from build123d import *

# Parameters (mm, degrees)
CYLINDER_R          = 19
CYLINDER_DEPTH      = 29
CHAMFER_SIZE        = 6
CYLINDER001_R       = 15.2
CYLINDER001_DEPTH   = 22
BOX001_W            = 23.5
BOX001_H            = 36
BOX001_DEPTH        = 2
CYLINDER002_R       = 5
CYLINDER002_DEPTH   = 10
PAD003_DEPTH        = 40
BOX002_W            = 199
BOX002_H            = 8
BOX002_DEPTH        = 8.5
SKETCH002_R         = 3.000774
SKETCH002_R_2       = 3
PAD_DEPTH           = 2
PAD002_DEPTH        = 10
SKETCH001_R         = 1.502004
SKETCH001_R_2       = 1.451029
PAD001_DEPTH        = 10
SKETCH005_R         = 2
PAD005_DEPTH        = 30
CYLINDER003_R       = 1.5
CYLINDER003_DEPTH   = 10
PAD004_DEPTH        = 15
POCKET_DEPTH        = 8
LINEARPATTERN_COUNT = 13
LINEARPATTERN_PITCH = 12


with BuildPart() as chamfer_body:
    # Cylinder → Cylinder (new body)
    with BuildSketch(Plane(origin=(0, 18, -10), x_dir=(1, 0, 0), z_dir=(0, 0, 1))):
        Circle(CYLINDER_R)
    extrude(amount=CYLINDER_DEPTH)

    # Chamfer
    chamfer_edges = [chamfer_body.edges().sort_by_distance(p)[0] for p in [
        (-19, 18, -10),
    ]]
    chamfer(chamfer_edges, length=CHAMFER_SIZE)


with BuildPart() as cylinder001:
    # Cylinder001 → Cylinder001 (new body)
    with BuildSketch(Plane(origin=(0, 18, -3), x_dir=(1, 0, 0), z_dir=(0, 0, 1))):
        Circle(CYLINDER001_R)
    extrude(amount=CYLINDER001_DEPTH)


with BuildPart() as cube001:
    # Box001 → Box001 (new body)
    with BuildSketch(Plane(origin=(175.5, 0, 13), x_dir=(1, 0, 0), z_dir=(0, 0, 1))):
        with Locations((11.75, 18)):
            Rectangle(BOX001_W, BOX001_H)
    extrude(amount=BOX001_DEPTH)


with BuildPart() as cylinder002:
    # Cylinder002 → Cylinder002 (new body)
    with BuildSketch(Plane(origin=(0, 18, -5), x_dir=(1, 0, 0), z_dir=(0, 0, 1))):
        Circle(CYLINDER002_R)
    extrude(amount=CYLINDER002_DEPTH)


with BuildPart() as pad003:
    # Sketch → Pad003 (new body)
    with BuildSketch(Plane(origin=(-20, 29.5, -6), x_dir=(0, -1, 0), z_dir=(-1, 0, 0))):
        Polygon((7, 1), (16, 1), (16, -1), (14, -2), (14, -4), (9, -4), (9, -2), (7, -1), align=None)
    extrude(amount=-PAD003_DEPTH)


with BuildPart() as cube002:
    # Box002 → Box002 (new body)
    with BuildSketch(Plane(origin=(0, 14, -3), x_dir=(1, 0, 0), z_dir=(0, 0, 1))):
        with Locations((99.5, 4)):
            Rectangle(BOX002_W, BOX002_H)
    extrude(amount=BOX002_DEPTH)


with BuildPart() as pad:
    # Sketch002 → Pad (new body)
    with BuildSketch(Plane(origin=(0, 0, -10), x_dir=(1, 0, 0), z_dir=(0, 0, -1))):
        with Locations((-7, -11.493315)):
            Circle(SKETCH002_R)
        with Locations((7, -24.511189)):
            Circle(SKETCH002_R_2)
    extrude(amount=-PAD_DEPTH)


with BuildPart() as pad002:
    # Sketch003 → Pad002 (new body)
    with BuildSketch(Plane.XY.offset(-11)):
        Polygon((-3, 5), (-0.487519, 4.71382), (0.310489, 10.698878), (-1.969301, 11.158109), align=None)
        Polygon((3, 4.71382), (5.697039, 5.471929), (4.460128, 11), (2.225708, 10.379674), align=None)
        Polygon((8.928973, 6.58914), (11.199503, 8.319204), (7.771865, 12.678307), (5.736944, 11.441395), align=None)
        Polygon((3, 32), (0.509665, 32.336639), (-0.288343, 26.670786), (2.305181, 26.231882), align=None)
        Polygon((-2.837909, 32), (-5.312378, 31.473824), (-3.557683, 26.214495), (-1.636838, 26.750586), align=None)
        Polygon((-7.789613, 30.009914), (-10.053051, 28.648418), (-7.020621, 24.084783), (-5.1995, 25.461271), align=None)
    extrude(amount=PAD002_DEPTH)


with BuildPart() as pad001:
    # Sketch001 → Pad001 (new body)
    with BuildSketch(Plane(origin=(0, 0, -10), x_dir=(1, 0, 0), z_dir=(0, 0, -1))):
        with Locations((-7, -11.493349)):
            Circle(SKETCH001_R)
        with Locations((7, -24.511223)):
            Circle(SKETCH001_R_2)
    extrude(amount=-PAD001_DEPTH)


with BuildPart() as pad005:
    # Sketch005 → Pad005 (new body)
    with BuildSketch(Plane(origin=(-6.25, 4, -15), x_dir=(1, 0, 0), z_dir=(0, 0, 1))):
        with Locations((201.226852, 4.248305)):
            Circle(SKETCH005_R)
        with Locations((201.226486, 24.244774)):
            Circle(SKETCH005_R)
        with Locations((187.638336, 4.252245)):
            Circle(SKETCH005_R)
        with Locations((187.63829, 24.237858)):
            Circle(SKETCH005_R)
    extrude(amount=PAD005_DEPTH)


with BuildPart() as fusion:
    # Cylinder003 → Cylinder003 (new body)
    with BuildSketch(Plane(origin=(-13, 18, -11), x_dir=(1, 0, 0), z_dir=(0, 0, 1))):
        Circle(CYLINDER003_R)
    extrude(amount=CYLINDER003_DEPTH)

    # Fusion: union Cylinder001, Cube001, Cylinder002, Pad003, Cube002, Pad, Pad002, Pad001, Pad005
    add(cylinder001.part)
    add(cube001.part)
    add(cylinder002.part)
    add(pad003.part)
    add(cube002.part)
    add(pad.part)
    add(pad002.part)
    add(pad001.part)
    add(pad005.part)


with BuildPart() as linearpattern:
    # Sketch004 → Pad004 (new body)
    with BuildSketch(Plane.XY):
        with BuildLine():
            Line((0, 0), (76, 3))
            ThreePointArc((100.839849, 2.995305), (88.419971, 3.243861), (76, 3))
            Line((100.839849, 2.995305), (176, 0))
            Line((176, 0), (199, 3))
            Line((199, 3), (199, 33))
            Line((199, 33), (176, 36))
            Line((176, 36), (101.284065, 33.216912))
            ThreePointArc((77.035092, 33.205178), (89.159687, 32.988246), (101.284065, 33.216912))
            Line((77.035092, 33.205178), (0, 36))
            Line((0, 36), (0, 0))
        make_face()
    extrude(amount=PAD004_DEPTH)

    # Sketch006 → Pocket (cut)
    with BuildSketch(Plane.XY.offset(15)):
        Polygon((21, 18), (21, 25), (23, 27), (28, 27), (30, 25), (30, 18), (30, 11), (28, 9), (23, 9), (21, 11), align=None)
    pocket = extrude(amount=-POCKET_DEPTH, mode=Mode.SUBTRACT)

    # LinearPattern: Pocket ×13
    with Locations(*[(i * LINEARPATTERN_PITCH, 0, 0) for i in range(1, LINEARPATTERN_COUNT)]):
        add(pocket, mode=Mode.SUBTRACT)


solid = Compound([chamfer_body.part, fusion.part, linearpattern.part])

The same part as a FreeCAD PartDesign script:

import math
import FreeCAD as App
import Part
import Sketcher

V = App.Vector
Q = App.Units.Quantity


def edges_at(feature, points):
    """Names of the edges that pass closest to the given points."""
    edges = feature.Shape.Edges
    near = lambda p: min(range(len(edges)), key=lambda i: edges[i].distToShape(Part.Vertex(*p))[0])
    return sorted({f"Edge{near(p) + 1}" for p in points})


def add_polygon(sketch, points):
    """Adds a closed chain of lines whose ends are joined by coincident constraints."""
    first, n = sketch.GeometryCount, len(points)
    for a, b in zip(points, points[1:] + points[:1]):
        sketch.addGeometry(Part.LineSegment(App.Vector(*a, 0), App.Vector(*b, 0)), False)
    for i in range(n):
        sketch.addConstraint(Sketcher.Constraint("Coincident", first + i, 2, first + (i + 1) % n, 1))

doc = App.newDocument("Part")
body = doc.addObject("PartDesign::Body", "Body")

# Sketch on XY plane
sketch1 = body.newObject("Sketcher::SketchObject", "Sketch")
sketch1.AttachmentSupport = (doc.getObject("XY_Plane"), [""])
sketch1.MapMode = "FlatFace"
sketch1.AttachmentOffset = App.Placement(V(0, 0, -10), App.Rotation())
sketch1.addGeometry(Part.Circle(V(0, 18, 0), V(0, 0, 1), 19), False)
sketch1.addConstraint([
    Sketcher.Constraint("PointOnObject", 0, 3, -2),
    Sketcher.Constraint("Diameter", 0, Q("38 mm")),
    Sketcher.Constraint("DistanceY", -1, 1, 0, 3, Q("18 mm")),
])
pad1 = body.newObject("PartDesign::Pad", "Pad")
pad1.Profile = sketch1
pad1.Length = 29
doc.recompute()

chamfer = body.newObject("PartDesign::Chamfer", "Chamfer")
chamfer.Base = (pad1, edges_at(pad1, [(-19, 18, -10)]))
chamfer.Size = 6
body2 = doc.addObject("PartDesign::Body", "Body001")

# Sketch on XY plane
sketch2 = body2.newObject("Sketcher::SketchObject", "Sketch001")
sketch2.AttachmentSupport = (doc.getObject("XY_Plane001"), [""])
sketch2.MapMode = "FlatFace"
sketch2.AttachmentOffset = App.Placement(V(0, 0, -3), App.Rotation())
sketch2.addGeometry(Part.Circle(V(0, 18, 0), V(0, 0, 1), 15), False)
sketch2.addConstraint([
    Sketcher.Constraint("PointOnObject", 0, 3, -2),
    Sketcher.Constraint("Diameter", 0, Q("30.4 mm")),
    Sketcher.Constraint("DistanceY", -1, 1, 0, 3, Q("18 mm")),
])
pad2 = body2.newObject("PartDesign::Pad", "Pad001")
pad2.Profile = sketch2
pad2.Length = 22
body3 = doc.addObject("PartDesign::Body", "Body002")

# Sketch on XY plane
sketch3 = body3.newObject("Sketcher::SketchObject", "Sketch002")
sketch3.AttachmentSupport = (doc.getObject("XY_Plane002"), [""])
sketch3.MapMode = "FlatFace"
sketch3.AttachmentOffset = App.Placement(V(0, 0, 13), App.Rotation())
add_polygon(sketch3, [(176, 36), (176, 0), (199, 0), (199, 36)])  # lines 0-3
sketch3.addConstraint([
    Sketcher.Constraint("Vertical", 0),
    Sketcher.Constraint("Horizontal", 1),
    Sketcher.Constraint("Vertical", 2),
    Sketcher.Constraint("Horizontal", 3),
    Sketcher.Constraint("PointOnObject", 0, 2, -1),
    Sketcher.Constraint("DistanceY", 0, 2, 0, 1, Q("36 mm")),
    Sketcher.Constraint("DistanceX", 1, 1, 1, 2, Q("23.5 mm")),
    Sketcher.Constraint("DistanceX", -1, 1, 1, 2, Q("199 mm")),
])
pad3 = body3.newObject("PartDesign::Pad", "Pad002")
pad3.Profile = sketch3
pad3.Length = 2
body4 = doc.addObject("PartDesign::Body", "Body003")

# Sketch on XY plane
sketch4 = body4.newObject("Sketcher::SketchObject", "Sketch003")
sketch4.AttachmentSupport = (doc.getObject("XY_Plane003"), [""])
sketch4.MapMode = "FlatFace"
sketch4.AttachmentOffset = App.Placement(V(0, 0, -5), App.Rotation())
sketch4.addGeometry(Part.Circle(V(0, 18, 0), V(0, 0, 1), 5), False)
sketch4.addConstraint([
    Sketcher.Constraint("PointOnObject", 0, 3, -2),
    Sketcher.Constraint("Diameter", 0, Q("10 mm")),
    Sketcher.Constraint("DistanceY", -1, 1, 0, 3, Q("18 mm")),
])
pad4 = body4.newObject("PartDesign::Pad", "Pad003")
pad4.Profile = sketch4
pad4.Length = 10
body5 = doc.addObject("PartDesign::Body", "Body004")

# Sketch on YZ plane
sketch5 = body5.newObject("Sketcher::SketchObject", "Sketch004")
sketch5.AttachmentSupport = (doc.getObject("YZ_Plane004"), [""])
sketch5.MapMode = "FlatFace"
sketch5.AttachmentOffset = App.Placement(V(0, 0, -20), App.Rotation())
add_polygon(sketch5, [(13.5, -5), (22.5, -5), (22.5, -7), (20.5, -8), (20.5, -10), (15.5, -10), (15.5, -8), (13.5, -7)])  # lines 0-7
sketch5.addConstraint([
    Sketcher.Constraint("Horizontal", 0),
    Sketcher.Constraint("Vertical", 1),
    Sketcher.Constraint("Vertical", 3),
    Sketcher.Constraint("Horizontal", 4),
    Sketcher.Constraint("Vertical", 5),
    Sketcher.Constraint("Vertical", 7),
    Sketcher.Constraint("Horizontal", 2, 2, 5, 2),
    Sketcher.Constraint("Horizontal", 1, 2, 6, 2),
    Sketcher.Constraint("Equal", 1, 3),
    Sketcher.Constraint("Equal", 2, 6),
    Sketcher.Constraint("DistanceX", 0, 1, 0, 2, Q("9 mm")),
    Sketcher.Constraint("DistanceX", 4, 2, 4, 1, Q("5 mm")),
    Sketcher.Constraint("DistanceY", 1, 2, 1, 1, Q("2 mm")),
    Sketcher.Constraint("DistanceY", 0, 2, -1, 1, Q("5 mm")),
    Sketcher.Constraint("DistanceY", 2, 2, -1, 1, Q("8 mm")),
    Sketcher.Constraint("DistanceX", -1, 1, 0, 2, Q("22.5 mm")),
])
pad5 = body5.newObject("PartDesign::Pad", "Pad004")
pad5.Profile = sketch5
pad5.Length = 40
body6 = doc.addObject("PartDesign::Body", "Body005")

# Sketch on XY plane
sketch6 = body6.newObject("Sketcher::SketchObject", "Sketch005")
sketch6.AttachmentSupport = (doc.getObject("XY_Plane005"), [""])
sketch6.MapMode = "FlatFace"
sketch6.AttachmentOffset = App.Placement(V(0, 0, -3), App.Rotation())
add_polygon(sketch6, [(0, 22), (0, 14), (199, 14), (199, 22)])  # lines 0-3
sketch6.addConstraint([
    Sketcher.Constraint("Vertical", 0),
    Sketcher.Constraint("Horizontal", 1),
    Sketcher.Constraint("Vertical", 2),
    Sketcher.Constraint("Horizontal", 3),
    Sketcher.Constraint("PointOnObject", 0, 2, -2),
    Sketcher.Constraint("DistanceX", 1, 1, 1, 2, Q("199 mm")),
    Sketcher.Constraint("DistanceY", 0, 2, 0, 1, Q("8 mm")),
    Sketcher.Constraint("DistanceY", -1, 1, 0, 2, Q("14 mm")),
])
pad6 = body6.newObject("PartDesign::Pad", "Pad005")
pad6.Profile = sketch6
pad6.Length = 8.5
body7 = doc.addObject("PartDesign::Body", "Body006")
body7.AllowCompound = True

# Sketch on XY plane
sketch7 = body7.newObject("Sketcher::SketchObject", "Sketch006")
sketch7.AttachmentSupport = (doc.getObject("XY_Plane006"), [""])
sketch7.MapMode = "FlatFace"
sketch7.AttachmentOffset = App.Placement(V(0, 0, -10), App.Rotation())
sketch7.addGeometry([
    Part.Circle(V(-7, 11.5, 0), V(0, 0, 1), 3),
    Part.Circle(V(7, 24.5, 0), V(0, 0, 1), 3),
], False)
sketch7.addConstraint([
    Sketcher.Constraint("Diameter", 1, Q("6 mm")),
    Sketcher.Constraint("DistanceX", 0, 3, -1, 1, Q("7 mm")),
    Sketcher.Constraint("DistanceX", -1, 1, 1, 3, Q("7 mm")),
    Sketcher.Constraint("Diameter", 0, Q("6.001548 mm")),
    Sketcher.Constraint("DistanceY", -1, 1, 1, 3, Q("24.511189 mm")),
    Sketcher.Constraint("DistanceY", -1, 1, 0, 3, Q("11.493315 mm")),
])
pad7 = body7.newObject("PartDesign::Pad", "Pad006")
pad7.Profile = sketch7
pad7.Length = 2
body8 = doc.addObject("PartDesign::Body", "Body007")
body8.AllowCompound = True

# Sketch on XY plane
sketch8 = body8.newObject("Sketcher::SketchObject", "Sketch007")
sketch8.AttachmentSupport = (doc.getObject("XY_Plane007"), [""])
sketch8.MapMode = "FlatFace"
sketch8.AttachmentOffset = App.Placement(V(0, 0, -11), App.Rotation())
add_polygon(sketch8, [(-3, 5), (-0.5, 4.7), (0.3, 10.7), (-2, 11.2)])  # lines 0-3
add_polygon(sketch8, [(3, 4.7), (5.7, 5.5), (4.5, 11), (2.2, 10.4)])  # lines 4-7
add_polygon(sketch8, [(8.9, 6.6), (11.2, 8.3), (7.8, 12.7), (5.7, 11.4)])  # lines 8-11
add_polygon(sketch8, [(3, 32), (0.5, 32.3), (-0.3, 26.7), (2.3, 26.2)])  # lines 12-15
add_polygon(sketch8, [(-2.8, 32), (-5.3, 31.5), (-3.6, 26.2), (-1.6, 26.8)])  # lines 16-19
add_polygon(sketch8, [(-7.8, 30), (-10.1, 28.6), (-7, 24.1), (-5.2, 25.5)])  # lines 20-23
sketch8.addConstraint([
    Sketcher.Constraint("Horizontal", 0, 2, 7, 2),
    Sketcher.Constraint("Horizontal", 15, 2, 19, 2),
    Sketcher.Constraint("Vertical", 7, 2, 15, 2),
    Sketcher.Constraint("DistanceX", 3, 2, -1, 1, Q("3 mm")),
    Sketcher.Constraint("DistanceY", -1, 1, 3, 2, Q("5 mm")),
    Sketcher.Constraint("DistanceY", -1, 1, 5, 2, Q("11 mm")),
    Sketcher.Constraint("DistanceX", -1, 1, 7, 2, Q("3 mm")),
    Sketcher.Constraint("DistanceY", -1, 1, 15, 2, Q("32 mm")),
    Sketcher.Constraint("Distance", 14, Q("2.6304 mm")),
    Sketcher.Constraint("DistanceX", 2, 2, -1, 1, Q("1.969301 mm")),
    Sketcher.Constraint("DistanceX", 22, 2, -1, 1, Q("5.1995 mm")),
    Sketcher.Constraint("DistanceX", 12, 2, 9, 2, Q("7.2622 mm")),
    Sketcher.Constraint("DistanceY", 13, 2, 18, 2, Q("0.0798 mm")),
    Sketcher.Constraint("Distance", 3, Q("6.243769 mm")),
    Sketcher.Constraint("Distance", 4, Q("2.801562 mm")),
    Sketcher.Constraint("Distance", 5, Q("5.664761 mm")),
    Sketcher.Constraint("Distance", 6, Q("2.31893 mm")),
    Sketcher.Constraint("Distance", 9, Q("5.545312 mm")),
    Sketcher.Constraint("Distance", 11, Q("5.808049 mm")),
    Sketcher.Constraint("Distance", 17, Q("5.544321 mm")),
    Sketcher.Constraint("Distance", 18, Q("1.994252 mm")),
    Sketcher.Constraint("Distance", 21, Q("5.47927 mm")),
    Sketcher.Constraint("Distance", 23, Q("5.23439 mm")),
    Sketcher.Constraint("DistanceX", 0, 2, -1, 1, Q("0.487519 mm")),
    Sketcher.Constraint("DistanceY", -1, 1, 0, 2, Q("4.71382 mm")),
    Sketcher.Constraint("DistanceX", -1, 1, 1, 2, Q("0.310489 mm")),
    Sketcher.Constraint("DistanceX", -1, 1, 4, 2, Q("5.697039 mm")),
    Sketcher.Constraint("DistanceX", -1, 1, 6, 2, Q("2.225708 mm")),
    Sketcher.Constraint("DistanceY", -1, 1, 11, 2, Q("6.58914 mm")),
    Sketcher.Constraint("DistanceY", -1, 1, 12, 2, Q("32.336639 mm")),
    Sketcher.Constraint("DistanceX", -1, 1, 14, 2, Q("2.305181 mm")),
    Sketcher.Constraint("DistanceY", -1, 1, 14, 2, Q("26.231882 mm")),
    Sketcher.Constraint("DistanceX", 19, 2, -1, 1, Q("2.837909 mm")),
    Sketcher.Constraint("DistanceX", 20, 2, -1, 1, Q("10.053051 mm")),
    Sketcher.Constraint("DistanceX", 21, 2, -1, 1, Q("7.020621 mm")),
    Sketcher.Constraint("DistanceY", -1, 1, 22, 2, Q("25.461271 mm")),
    Sketcher.Constraint("DistanceY", 0, 2, 1, 2, Q("5.985058 mm")),
    Sketcher.Constraint("DistanceY", 8, 2, 6, 2, Q("2.06047 mm")),
    Sketcher.Constraint("DistanceX", 9, 2, 8, 2, Q("3.427638 mm")),
    Sketcher.Constraint("DistanceX", 10, 2, 9, 2, Q("2.034921 mm")),
    Sketcher.Constraint("DistanceY", 6, 2, 10, 2, Q("1.061721 mm")),
    Sketcher.Constraint("DistanceX", 13, 2, 12, 2, Q("0.798008 mm")),
    Sketcher.Constraint("DistanceY", 9, 2, 13, 2, Q("13.992479 mm")),
    Sketcher.Constraint("DistanceY", 13, 2, 16, 2, Q("4.803038 mm")),
    Sketcher.Constraint("DistanceX", 16, 2, 14, 2, Q("7.617559 mm")),
    Sketcher.Constraint("DistanceX", 17, 2, 13, 2, Q("3.26934 mm")),
    Sketcher.Constraint("DistanceY", 13, 2, 20, 2, Q("1.977632 mm")),
    Sketcher.Constraint("DistanceY", 23, 2, 16, 2, Q("1.46391 mm")),
])
pad8 = body8.newObject("PartDesign::Pad", "Pad007")
pad8.Profile = sketch8
pad8.Length = 10
body9 = doc.addObject("PartDesign::Body", "Body008")
body9.AllowCompound = True

# Sketch on XY plane
sketch9 = body9.newObject("Sketcher::SketchObject", "Sketch008")
sketch9.AttachmentSupport = (doc.getObject("XY_Plane008"), [""])
sketch9.MapMode = "FlatFace"
sketch9.AttachmentOffset = App.Placement(V(0, 0, -10), App.Rotation())
sketch9.addGeometry([
    Part.Circle(V(-7, 11.5, 0), V(0, 0, 1), 1.5),
    Part.Circle(V(7, 24.5, 0), V(0, 0, 1), 1.5),
], False)
sketch9.addConstraint([
    Sketcher.Constraint("DistanceX", 0, 3, -1, 1, Q("7 mm")),
    Sketcher.Constraint("DistanceX", -1, 1, 1, 3, Q("7 mm")),
    Sketcher.Constraint("Diameter", 0, Q("3.004008 mm")),
    Sketcher.Constraint("Diameter", 1, Q("2.902058 mm")),
    Sketcher.Constraint("DistanceY", -1, 1, 0, 3, Q("11.493349 mm")),
    Sketcher.Constraint("DistanceY", -1, 1, 1, 3, Q("24.511223 mm")),
])
pad9 = body9.newObject("PartDesign::Pad", "Pad008")
pad9.Profile = sketch9
pad9.Length = 10
body10 = doc.addObject("PartDesign::Body", "Body009")
body10.AllowCompound = True

# Sketch on XY plane
sketch10 = body10.newObject("Sketcher::SketchObject", "Sketch009")
sketch10.AttachmentSupport = (doc.getObject("XY_Plane009"), [""])
sketch10.MapMode = "FlatFace"
sketch10.AttachmentOffset = App.Placement(V(0, 0, -15), App.Rotation())
sketch10.addGeometry([
    Part.Circle(V(195, 8.2, 0), V(0, 0, 1), 2),
    Part.Circle(V(195, 28.2, 0), V(0, 0, 1), 2),
    Part.Circle(V(181.4, 8.3, 0), V(0, 0, 1), 2),
    Part.Circle(V(181.4, 28.2, 0), V(0, 0, 1), 2),
], False)
sketch10.addConstraint([
    Sketcher.Constraint("Equal", 0, 1),
    Sketcher.Constraint("Equal", 1, 2),
    Sketcher.Constraint("Equal", 2, 3),
    Sketcher.Constraint("Diameter", 0, Q("4 mm")),
    Sketcher.Constraint("DistanceX", -1, 1, 0, 3, Q("194.976852 mm")),
    Sketcher.Constraint("DistanceX", -1, 1, 3, 3, Q("181.38829 mm")),
    Sketcher.Constraint("DistanceY", 0, 3, 1, 3, Q("19.996469 mm")),
    Sketcher.Constraint("DistanceY", 0, 3, 2, 3, Q("0.00394 mm")),
    Sketcher.Constraint("DistanceX", 2, 3, 1, 3, Q("13.58815 mm")),
    Sketcher.Constraint("DistanceY", -1, 1, 0, 3, Q("8.248305 mm")),
    Sketcher.Constraint("DistanceX", -1, 1, 1, 3, Q("194.976486 mm")),
    Sketcher.Constraint("DistanceY", -1, 1, 3, 3, Q("28.237858 mm")),
])
pad10 = body10.newObject("PartDesign::Pad", "Pad009")
pad10.Profile = sketch10
pad10.Length = 30
body11 = doc.addObject("PartDesign::Body", "Body010")
body11.AllowCompound = True

# Sketch on XY plane
sketch11 = body11.newObject("Sketcher::SketchObject", "Sketch010")
sketch11.AttachmentSupport = (doc.getObject("XY_Plane010"), [""])
sketch11.MapMode = "FlatFace"
sketch11.AttachmentOffset = App.Placement(V(0, 0, -11), App.Rotation())
sketch11.addGeometry(Part.Circle(V(-13, 18, 0), V(0, 0, 1), 1.5), False)
sketch11.addConstraint([
    Sketcher.Constraint("Diameter", 0, Q("3 mm")),
    Sketcher.Constraint("DistanceX", 0, 3, -1, 1, Q("13 mm")),
    Sketcher.Constraint("DistanceY", -1, 1, 0, 3, Q("18 mm")),
])
pad11 = body11.newObject("PartDesign::Pad", "Pad010")
pad11.Profile = sketch11
pad11.Length = 10
doc.recompute()

boolean = body11.newObject("PartDesign::Boolean", "Boolean")
boolean.Type = "Fuse"
boolean.addObjects([body2])
doc.recompute()

boolean2 = body11.newObject("PartDesign::Boolean", "Boolean001")
boolean2.Type = "Fuse"
boolean2.addObjects([body3])
doc.recompute()

boolean3 = body11.newObject("PartDesign::Boolean", "Boolean002")
boolean3.Type = "Fuse"
boolean3.addObjects([body4])
doc.recompute()

boolean4 = body11.newObject("PartDesign::Boolean", "Boolean003")
boolean4.Type = "Fuse"
boolean4.addObjects([body5])
doc.recompute()

boolean5 = body11.newObject("PartDesign::Boolean", "Boolean004")
boolean5.Type = "Fuse"
boolean5.addObjects([body6])
doc.recompute()

boolean6 = body11.newObject("PartDesign::Boolean", "Boolean005")
boolean6.Type = "Fuse"
boolean6.addObjects([body7])
doc.recompute()

boolean7 = body11.newObject("PartDesign::Boolean", "Boolean006")
boolean7.Type = "Fuse"
boolean7.addObjects([body8])
doc.recompute()

boolean8 = body11.newObject("PartDesign::Boolean", "Boolean007")
boolean8.Type = "Fuse"
boolean8.addObjects([body9])
doc.recompute()

boolean9 = body11.newObject("PartDesign::Boolean", "Boolean008")
boolean9.Type = "Fuse"
boolean9.addObjects([body10])
body12 = doc.addObject("PartDesign::Body", "Body011")

# Sketch on XY plane
sketch12 = body12.newObject("Sketcher::SketchObject", "Sketch011")
sketch12.AttachmentSupport = (doc.getObject("XY_Plane011"), [""])
sketch12.MapMode = "FlatFace"
sketch12.addGeometry([
    Part.LineSegment(V(0, 0, 0), V(76, 3, 0)),  # 0
    Part.ArcOfCircle(Part.Circle(V(88.360738, -310.139193, 0), V(0, 0, 1), 313.383059), math.radians(87.717843), math.radians(92.260498)),  # 1
    Part.LineSegment(V(100.839849, 2.995305, 0), V(176, 0, 0)),  # 2
    Part.LineSegment(V(176, 0, 0), V(199, 3, 0)),  # 3
    Part.LineSegment(V(199, 3, 0), V(199, 33, 0)),  # 4
    Part.LineSegment(V(199, 33, 0), V(176, 36, 0)),  # 5
    Part.LineSegment(V(176, 36, 0), V(101.284065, 33.216912, 0)),  # 6
    Part.ArcOfCircle(Part.Circle(V(88.999994, 363.000526, 0), V(0, 0, 1), 330.012319), math.radians(-92.077767), math.radians(-87.866783)),  # 7
    Part.LineSegment(V(77.035092, 33.205178, 0), V(0, 36, 0)),  # 8
    Part.LineSegment(V(0, 36, 0), V(0, 0, 0)),  # 9
], False)
sketch12.addConstraint([
    Sketcher.Constraint("Coincident", 0, 2, 1, 2),
    Sketcher.Constraint("Coincident", 1, 1, 2, 1),
    Sketcher.Constraint("Coincident", 2, 2, 3, 1),
    Sketcher.Constraint("Coincident", 3, 2, 4, 1),
    Sketcher.Constraint("Coincident", 4, 2, 5, 1),
    Sketcher.Constraint("Coincident", 5, 2, 6, 1),
    Sketcher.Constraint("Coincident", 6, 2, 7, 2),
    Sketcher.Constraint("Coincident", 7, 1, 8, 1),
    Sketcher.Constraint("Coincident", 8, 2, 9, 1),
    Sketcher.Constraint("Coincident", 9, 2, 0, 1),
    Sketcher.Constraint("Vertical", 4),
    Sketcher.Constraint("Vertical", 9),
    Sketcher.Constraint("Coincident", 9, 2, -1, 1),
    Sketcher.Constraint("PointOnObject", 2, 2, -1),
    Sketcher.Constraint("DistanceY", 4, 1, 4, 2, Q("30 mm")),
    Sketcher.Constraint("DistanceY", 9, 2, 9, 1, Q("36 mm")),
    Sketcher.Constraint("DistanceX", -1, 1, 0, 2, Q("76 mm")),
    Sketcher.Constraint("DistanceY", -1, 1, 0, 2, Q("3 mm")),
    Sketcher.Constraint("DistanceX", -1, 1, 2, 2, Q("176 mm")),
    Sketcher.Constraint("DistanceX", -1, 1, 3, 2, Q("199 mm")),
    Sketcher.Constraint("DistanceY", -1, 1, 3, 2, Q("3 mm")),
    Sketcher.Constraint("DistanceX", -1, 1, 5, 2, Q("176 mm")),
    Sketcher.Constraint("DistanceY", -1, 1, 5, 2, Q("36 mm")),
    Sketcher.Constraint("Radius", 1, Q("313.383059 mm")),
    Sketcher.Constraint("Radius", 7, Q("330.012319 mm")),
    Sketcher.Constraint("Distance", 6, Q("74.767751 mm")),
    Sketcher.Constraint("DistanceX", -1, 1, 1, 3, Q("88.360738 mm")),
    Sketcher.Constraint("DistanceX", -1, 1, 1, 1, Q("100.839849 mm")),
    Sketcher.Constraint("DistanceY", -1, 1, 7, 1, Q("33.205178 mm")),
    Sketcher.Constraint("DistanceY", 1, 3, 7, 3, Q("673.139719 mm")),
    Sketcher.Constraint("Distance", 8, Q("77.085773 mm")),
])
pad12 = body12.newObject("PartDesign::Pad", "Pad011")
pad12.Profile = sketch12
pad12.Length = 15

# Sketch on XY plane
sketch13 = body12.newObject("Sketcher::SketchObject", "Sketch012")
sketch13.AttachmentSupport = (doc.getObject("XY_Plane011"), [""])
sketch13.MapMode = "FlatFace"
sketch13.AttachmentOffset = App.Placement(V(0, 0, 15), App.Rotation())
add_polygon(sketch13, [(21, 25), (21, 11), (23, 9), (28, 9), (30, 11), (30, 25), (28, 27), (23, 27)])  # lines 0-7
sketch13.addConstraint([
    Sketcher.Constraint("Vertical", 0),
    Sketcher.Constraint("Horizontal", 2),
    Sketcher.Constraint("Vertical", 4),
    Sketcher.Constraint("Horizontal", 6),
    Sketcher.Constraint("Perpendicular", 1, 3),
    Sketcher.Constraint("Perpendicular", 3, 5),
    Sketcher.Constraint("Perpendicular", 5, 7),
    Sketcher.Constraint("Horizontal", 0, 2, 3, 2),
    Sketcher.Constraint("Horizontal", 4, 2, 7, 2),
    Sketcher.Constraint("Vertical", 2, 2, 5, 2),
    Sketcher.Constraint("Vertical", 1, 2, 6, 2),
    Sketcher.Constraint("DistanceX", 2, 1, 2, 2, Q("5 mm")),
    Sketcher.Constraint("DistanceY", 0, 2, 0, 1, Q("14 mm")),
    Sketcher.Constraint("DistanceX", -1, 1, 0, 2, Q("21 mm")),
    Sketcher.Constraint("DistanceY", -1, 1, 0, 2, Q("11 mm")),
    Sketcher.Constraint("DistanceX", -1, 1, 1, 2, Q("23 mm")),
])
pocket1 = body12.newObject("PartDesign::Pocket", "Pocket")
pocket1.Profile = sketch13
pocket1.Length = 8
doc.recompute()

linearpattern = body12.newObject("PartDesign::LinearPattern", "LinearPattern")
linearpattern.Originals = [pocket1]
linearpattern.Direction = (doc.getObject("X_Axis011"), [""])
linearpattern.Mode = "offset"
linearpattern.Offset = 12
linearpattern.Occurrences = 13
body12.Tip = linearpattern

doc.recompute()
